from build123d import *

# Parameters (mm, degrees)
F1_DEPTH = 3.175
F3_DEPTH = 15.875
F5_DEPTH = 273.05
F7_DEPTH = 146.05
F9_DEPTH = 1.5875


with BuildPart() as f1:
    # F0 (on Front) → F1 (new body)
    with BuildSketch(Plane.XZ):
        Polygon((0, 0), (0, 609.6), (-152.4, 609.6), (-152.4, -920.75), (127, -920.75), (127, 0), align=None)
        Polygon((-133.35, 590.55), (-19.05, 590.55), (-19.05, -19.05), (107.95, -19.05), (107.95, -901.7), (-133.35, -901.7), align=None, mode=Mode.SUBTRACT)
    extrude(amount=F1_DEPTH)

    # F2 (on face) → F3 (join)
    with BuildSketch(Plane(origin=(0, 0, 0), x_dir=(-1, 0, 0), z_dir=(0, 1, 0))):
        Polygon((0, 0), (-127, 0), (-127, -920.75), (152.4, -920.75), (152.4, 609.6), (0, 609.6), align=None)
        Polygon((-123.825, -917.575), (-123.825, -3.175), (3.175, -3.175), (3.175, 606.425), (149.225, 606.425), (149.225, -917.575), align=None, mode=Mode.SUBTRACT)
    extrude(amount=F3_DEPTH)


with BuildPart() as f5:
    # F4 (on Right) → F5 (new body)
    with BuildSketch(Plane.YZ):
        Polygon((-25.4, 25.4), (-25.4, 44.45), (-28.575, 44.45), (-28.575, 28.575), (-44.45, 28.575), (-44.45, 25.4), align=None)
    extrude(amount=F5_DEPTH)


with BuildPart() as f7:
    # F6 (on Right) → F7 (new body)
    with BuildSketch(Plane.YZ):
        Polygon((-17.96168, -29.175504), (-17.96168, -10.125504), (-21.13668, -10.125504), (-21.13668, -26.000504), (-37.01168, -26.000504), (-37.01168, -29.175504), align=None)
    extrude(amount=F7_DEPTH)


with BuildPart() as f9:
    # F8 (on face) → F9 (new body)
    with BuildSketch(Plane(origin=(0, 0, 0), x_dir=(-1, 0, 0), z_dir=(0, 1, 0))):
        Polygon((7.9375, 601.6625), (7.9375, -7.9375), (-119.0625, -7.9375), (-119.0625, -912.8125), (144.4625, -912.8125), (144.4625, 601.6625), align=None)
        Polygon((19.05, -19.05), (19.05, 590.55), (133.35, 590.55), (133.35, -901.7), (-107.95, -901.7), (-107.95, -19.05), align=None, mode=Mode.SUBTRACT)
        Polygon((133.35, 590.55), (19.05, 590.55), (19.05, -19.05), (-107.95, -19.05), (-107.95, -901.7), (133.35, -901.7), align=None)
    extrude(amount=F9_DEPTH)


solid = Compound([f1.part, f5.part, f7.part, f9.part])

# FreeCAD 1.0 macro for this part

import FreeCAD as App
import Part
import Sketcher
from FreeCAD import Vector
Q = App.Units.Quantity


def add_polygon(sketch, points):
    """Adds a closed chain of lines whose ends are joined by coincident constraints."""
    first, n = sketch.GeometryCount, len(points)
    for a, b in zip(points, points[1:] + points[:1]):
        sketch.addGeometry(Part.LineSegment(App.Vector(*a, 0), App.Vector(*b, 0)), False)
    for i in range(n):
        sketch.addConstraint(Sketcher.Constraint("Coincident", first + i, 2, first + (i + 1) % n, 1))

doc = App.newDocument("Part")
params = doc.addObject("Spreadsheet::Sheet", "Params")
for row, (alias, value) in enumerate([
    ("sketch1_width", "6 in"),
    ("sketch1_width2", "11 in"),
    ("sketch1_height", "24 in"),
    ("sketch1_width3", "4.5 in"),
    ("sketch1_height2", "60.25 in"),
    ("pad1_length", "0.125 in"),
    ("sketch2_width", "5 in"),
    ("sketch2_width2", "11 in"),
    ("sketch2_height", "24 in"),
    ("sketch2_height2", "36 in"),
    ("sketch2_width3", "10.75 in"),
    ("pad2_length", "0.625 in"),
    ("sketch3_width", "0.75 in"),
    ("sketch3_width2", "0.125 in"),
    ("pad3_length", "10.75 in"),
    ("sketch4_width", "0.75 in"),
    ("sketch4_width2", "0.125 in"),
    ("pad4_length", "5.75 in"),
    ("sketch5_width", "5 in"),
    ("sketch5_height", "24 in"),
    ("sketch5_width2", "10.375 in"),
    ("sketch5_height2", "35.625 in"),
    ("pad5_length", "0.0625 in"),
], start=1):
    params.set(f"A{row}", alias)
    params.set(f"B{row}", "=" + value)
    params.setAlias(f"B{row}", alias)

body = doc.addObject("PartDesign::Body", "Body")

# Sketch on XZ plane
sketch1 = body.newObject("Sketcher::SketchObject", "Sketch")
sketch1.AttachmentSupport = (doc.getObject("XZ_Plane"), [""])
sketch1.MapMode = "FlatFace"
add_polygon(sketch1, [(0, 0), (0, 610), (-152, 610), (-152, -921), (127, -921), (127, 0)])  # lines 0-5
add_polygon(sketch1, [(-133, -902), (-133, 591), (-19, 591), (-19, -19), (108, -19), (108, -902)])  # lines 6-11
sketch1.addConstraint([
    Sketcher.Constraint("Vertical", 0),
    Sketcher.Constraint("Horizontal", 1),
    Sketcher.Constraint("Vertical", 2),
    Sketcher.Constraint("Horizontal", 3),
    Sketcher.Constraint("Vertical", 4),
    Sketcher.Constraint("Horizontal", 5),
    Sketcher.Constraint("Vertical", 6),
    Sketcher.Constraint("Horizontal", 7),
    Sketcher.Constraint("Vertical", 8),
    Sketcher.Constraint("Horizontal", 9),
    Sketcher.Constraint("Vertical", 10),
    Sketcher.Constraint("Horizontal", 11),
    Sketcher.Constraint("Coincident", 5, 2, -1, 1),
    Sketcher.Constraint("Equal", 5, 9),
    Sketcher.Constraint("Equal", 0, 8),
    Sketcher.Constraint("DistanceX", 1, 2, 1, 1, Q("6 in")),
    Sketcher.Constraint("DistanceX", 3, 1, 3, 2, Q("11 in")),
    Sketcher.Constraint("DistanceY", 0, 1, 0, 2, Q("24 in")),
    Sketcher.Constraint("DistanceX", 7, 1, 7, 2, Q("4.5 in")),
    Sketcher.Constraint("DistanceY", 2, 2, 2, 1, Q("60.25 in")),
    Sketcher.Constraint("DistanceY", 6, 1, 6, 2, Q("58.75 in")),
    Sketcher.Constraint("DistanceY", 10, 2, -1, 1, Q("35.5 in")),
    Sketcher.Constraint("DistanceX", 6, 2, -1, 1, Q("5.25 in")),
])
sketch1.setExpression("Constraints[27]", "Params.sketch1_width")
sketch1.setExpression("Constraints[28]", "Params.sketch1_width2")
sketch1.setExpression("Constraints[29]", "Params.sketch1_height")
sketch1.setExpression("Constraints[30]", "Params.sketch1_width3")
sketch1.setExpression("Constraints[31]", "Params.sketch1_height2")
pad1 = body.newObject("PartDesign::Pad", "Pad")
pad1.Profile = sketch1
pad1.setExpression("Length", "Params.pad1_length")

# Sketch on XZ plane
sketch2 = body.newObject("Sketcher::SketchObject", "Sketch001")
sketch2.AttachmentSupport = (doc.getObject("XZ_Plane"), [""])
sketch2.MapMode = "FlatFace"
add_polygon(sketch2, [(0, 0), (127, 0), (127, -921), (-152, -921), (-152, 610), (0, 610)])  # lines 0-5
add_polygon(sketch2, [(-149, -918), (124, -918), (124, -3), (-3, -3), (-3, 606), (-149, 606)])  # lines 6-11
sketch2.addConstraint([
    Sketcher.Constraint("Horizontal", 0),
    Sketcher.Constraint("Vertical", 1),
    Sketcher.Constraint("Horizontal", 2),
    Sketcher.Constraint("Vertical", 3),
    Sketcher.Constraint("Horizontal", 4),
    Sketcher.Constraint("Vertical", 5),
    Sketcher.Constraint("Horizontal", 6),
    Sketcher.Constraint("Vertical", 7),
    Sketcher.Constraint("Horizontal", 8),
    Sketcher.Constraint("Vertical", 9),
    Sketcher.Constraint("Horizontal", 10),
    Sketcher.Constraint("Vertical", 11),
    Sketcher.Constraint("Coincident", 5, 2, -1, 1),
    Sketcher.Constraint("Equal", 0, 8),
    Sketcher.Constraint("Equal", 5, 9),
    Sketcher.Constraint("DistanceX", 0, 1, 0, 2, Q("5 in")),
    Sketcher.Constraint("DistanceX", 2, 2, 2, 1, Q("11 in")),
    Sketcher.Constraint("DistanceY", 5, 2, 5, 1, Q("24 in")),
    Sketcher.Constraint("DistanceY", 7, 1, 7, 2, Q("36 in")),
    Sketcher.Constraint("DistanceX", 6, 1, 6, 2, Q("10.75 in")),
    Sketcher.Constraint("DistanceY", 1, 2, 1, 1, Q("36.25 in")),
    Sketcher.Constraint("DistanceX", -1, 1, 6, 2, Q("4.875 in")),
    Sketcher.Constraint("DistanceY", 6, 2, -1, 1, Q("36.125 in")),
])
sketch2.setExpression("Constraints[27]", "Params.sketch2_width")
sketch2.setExpression("Constraints[28]", "Params.sketch2_width2")
sketch2.setExpression("Constraints[29]", "Params.sketch2_height")
sketch2.setExpression("Constraints[30]", "Params.sketch2_height2")
sketch2.setExpression("Constraints[31]", "Params.sketch2_width3")
pad2 = body.newObject("PartDesign::Pad", "Pad001")
pad2.Profile = sketch2
pad2.setExpression("Length", "Params.pad2_length")
pad2.Reversed = True
body2 = doc.addObject("PartDesign::Body", "Body001")

# Sketch on YZ plane
sketch3 = body2.newObject("Sketcher::SketchObject", "Sketch002")
sketch3.AttachmentSupport = (doc.getObject("YZ_Plane001"), [""])
sketch3.MapMode = "FlatFace"
add_polygon(sketch3, [(-25.4, 25.4), (-25.4, 44.5), (-28.6, 44.5), (-28.6, 28.6), (-44.5, 28.6), (-44.5, 25.4)])  # lines 0-5
sketch3.addConstraint([
    Sketcher.Constraint("Vertical", 0),
    Sketcher.Constraint("Horizontal", 1),
    Sketcher.Constraint("Vertical", 2),
    Sketcher.Constraint("Horizontal", 3),
    Sketcher.Constraint("Vertical", 4),
    Sketcher.Constraint("Horizontal", 5),
    Sketcher.Constraint("Equal", 5, 0),
    Sketcher.Constraint("Equal", 3, 2),
    Sketcher.Constraint("DistanceX", 0, 2, -1, 1, Q("1 in")),
    Sketcher.Constraint("DistanceY", -1, 1, 4, 2, Q("1 in")),
    Sketcher.Constraint("DistanceX", 5, 1, 5, 2, Q("0.75 in")),
    Sketcher.Constraint("DistanceX", 1, 2, 1, 1, Q("0.125 in")),
])
sketch3.setExpression("Constraints[16]", "Params.sketch3_width")
sketch3.setExpression("Constraints[17]", "Params.sketch3_width2")
pad3 = body2.newObject("PartDesign::Pad", "Pad002")
pad3.Profile = sketch3
pad3.setExpression("Length", "Params.pad3_length")
body3 = doc.addObject("PartDesign::Body", "Body002")

# Sketch on YZ plane
sketch4 = body3.newObject("Sketcher::SketchObject", "Sketch003")
sketch4.AttachmentSupport = (doc.getObject("YZ_Plane002"), [""])
sketch4.MapMode = "FlatFace"
add_polygon(sketch4, [(-18, -29.2), (-18, -10.1), (-21.1, -10.1), (-21.1, -26), (-37, -26), (-37, -29.2)])  # lines 0-5
sketch4.addConstraint([
    Sketcher.Constraint("Vertical", 0),
    Sketcher.Constraint("Horizontal", 1),
    Sketcher.Constraint("Vertical", 2),
    Sketcher.Constraint("Horizontal", 3),
    Sketcher.Constraint("Vertical", 4),
    Sketcher.Constraint("Horizontal", 5),
    Sketcher.Constraint("Equal", 5, 0),
    Sketcher.Constraint("Equal", 3, 2),
    Sketcher.Constraint("DistanceX", 5, 1, 5, 2, Q("0.75 in")),
    Sketcher.Constraint("DistanceX", 1, 2, 1, 1, Q("0.125 in")),
    Sketcher.Constraint("DistanceX", 0, 2, -1, 1, 17.96168),
    Sketcher.Constraint("DistanceY", 0, 2, -1, 1, 10.125504),
])
sketch4.setExpression("Constraints[14]", "Params.sketch4_width")
sketch4.setExpression("Constraints[15]", "Params.sketch4_width2")
pad4 = body3.newObject("PartDesign::Pad", "Pad003")
pad4.Profile = sketch4
pad4.setExpression("Length", "Params.pad4_length")
body4 = doc.addObject("PartDesign::Body", "Body003")

# Sketch on XZ plane
sketch5 = body4.newObject("Sketcher::SketchObject", "Sketch004")
sketch5.AttachmentSupport = (doc.getObject("XZ_Plane003"), [""])
sketch5.MapMode = "FlatFace"
add_polygon(sketch5, [(-8, 602), (-8, -8), (119, -8), (119, -913), (-144, -913), (-144, 602)])  # lines 0-5
sketch5.addConstraint([
    Sketcher.Constraint("Vertical", 0),
    Sketcher.Constraint("Horizontal", 1),
    Sketcher.Constraint("Vertical", 2),
    Sketcher.Constraint("Horizontal", 3),
    Sketcher.Constraint("Vertical", 4),
    Sketcher.Constraint("Horizontal", 5),
    Sketcher.Constraint("DistanceX", 1, 1, 1, 2, Q("5 in")),
    Sketcher.Constraint("DistanceY", 0, 2, 0, 1, Q("24 in")),
    Sketcher.Constraint("DistanceX", 3, 2, 3, 1, Q("10.375 in")),
    Sketcher.Constraint("DistanceY", 2, 2, 2, 1, Q("35.625 in")),
    Sketcher.Constraint("DistanceX", 0, 2, -1, 1, Q("0.3125 in")),
    Sketcher.Constraint("DistanceY", 0, 2, -1, 1, Q("0.3125 in")),
])
sketch5.setExpression("Constraints[12]", "Params.sketch5_width")
sketch5.setExpression("Constraints[13]", "Params.sketch5_height")
sketch5.setExpression("Constraints[14]", "Params.sketch5_width2")
sketch5.setExpression("Constraints[15]", "Params.sketch5_height2")
pad5 = body4.newObject("PartDesign::Pad", "Pad004")
pad5.Profile = sketch5
pad5.setExpression("Length", "Params.pad5_length")
pad5.Reversed = True

doc.recompute()
